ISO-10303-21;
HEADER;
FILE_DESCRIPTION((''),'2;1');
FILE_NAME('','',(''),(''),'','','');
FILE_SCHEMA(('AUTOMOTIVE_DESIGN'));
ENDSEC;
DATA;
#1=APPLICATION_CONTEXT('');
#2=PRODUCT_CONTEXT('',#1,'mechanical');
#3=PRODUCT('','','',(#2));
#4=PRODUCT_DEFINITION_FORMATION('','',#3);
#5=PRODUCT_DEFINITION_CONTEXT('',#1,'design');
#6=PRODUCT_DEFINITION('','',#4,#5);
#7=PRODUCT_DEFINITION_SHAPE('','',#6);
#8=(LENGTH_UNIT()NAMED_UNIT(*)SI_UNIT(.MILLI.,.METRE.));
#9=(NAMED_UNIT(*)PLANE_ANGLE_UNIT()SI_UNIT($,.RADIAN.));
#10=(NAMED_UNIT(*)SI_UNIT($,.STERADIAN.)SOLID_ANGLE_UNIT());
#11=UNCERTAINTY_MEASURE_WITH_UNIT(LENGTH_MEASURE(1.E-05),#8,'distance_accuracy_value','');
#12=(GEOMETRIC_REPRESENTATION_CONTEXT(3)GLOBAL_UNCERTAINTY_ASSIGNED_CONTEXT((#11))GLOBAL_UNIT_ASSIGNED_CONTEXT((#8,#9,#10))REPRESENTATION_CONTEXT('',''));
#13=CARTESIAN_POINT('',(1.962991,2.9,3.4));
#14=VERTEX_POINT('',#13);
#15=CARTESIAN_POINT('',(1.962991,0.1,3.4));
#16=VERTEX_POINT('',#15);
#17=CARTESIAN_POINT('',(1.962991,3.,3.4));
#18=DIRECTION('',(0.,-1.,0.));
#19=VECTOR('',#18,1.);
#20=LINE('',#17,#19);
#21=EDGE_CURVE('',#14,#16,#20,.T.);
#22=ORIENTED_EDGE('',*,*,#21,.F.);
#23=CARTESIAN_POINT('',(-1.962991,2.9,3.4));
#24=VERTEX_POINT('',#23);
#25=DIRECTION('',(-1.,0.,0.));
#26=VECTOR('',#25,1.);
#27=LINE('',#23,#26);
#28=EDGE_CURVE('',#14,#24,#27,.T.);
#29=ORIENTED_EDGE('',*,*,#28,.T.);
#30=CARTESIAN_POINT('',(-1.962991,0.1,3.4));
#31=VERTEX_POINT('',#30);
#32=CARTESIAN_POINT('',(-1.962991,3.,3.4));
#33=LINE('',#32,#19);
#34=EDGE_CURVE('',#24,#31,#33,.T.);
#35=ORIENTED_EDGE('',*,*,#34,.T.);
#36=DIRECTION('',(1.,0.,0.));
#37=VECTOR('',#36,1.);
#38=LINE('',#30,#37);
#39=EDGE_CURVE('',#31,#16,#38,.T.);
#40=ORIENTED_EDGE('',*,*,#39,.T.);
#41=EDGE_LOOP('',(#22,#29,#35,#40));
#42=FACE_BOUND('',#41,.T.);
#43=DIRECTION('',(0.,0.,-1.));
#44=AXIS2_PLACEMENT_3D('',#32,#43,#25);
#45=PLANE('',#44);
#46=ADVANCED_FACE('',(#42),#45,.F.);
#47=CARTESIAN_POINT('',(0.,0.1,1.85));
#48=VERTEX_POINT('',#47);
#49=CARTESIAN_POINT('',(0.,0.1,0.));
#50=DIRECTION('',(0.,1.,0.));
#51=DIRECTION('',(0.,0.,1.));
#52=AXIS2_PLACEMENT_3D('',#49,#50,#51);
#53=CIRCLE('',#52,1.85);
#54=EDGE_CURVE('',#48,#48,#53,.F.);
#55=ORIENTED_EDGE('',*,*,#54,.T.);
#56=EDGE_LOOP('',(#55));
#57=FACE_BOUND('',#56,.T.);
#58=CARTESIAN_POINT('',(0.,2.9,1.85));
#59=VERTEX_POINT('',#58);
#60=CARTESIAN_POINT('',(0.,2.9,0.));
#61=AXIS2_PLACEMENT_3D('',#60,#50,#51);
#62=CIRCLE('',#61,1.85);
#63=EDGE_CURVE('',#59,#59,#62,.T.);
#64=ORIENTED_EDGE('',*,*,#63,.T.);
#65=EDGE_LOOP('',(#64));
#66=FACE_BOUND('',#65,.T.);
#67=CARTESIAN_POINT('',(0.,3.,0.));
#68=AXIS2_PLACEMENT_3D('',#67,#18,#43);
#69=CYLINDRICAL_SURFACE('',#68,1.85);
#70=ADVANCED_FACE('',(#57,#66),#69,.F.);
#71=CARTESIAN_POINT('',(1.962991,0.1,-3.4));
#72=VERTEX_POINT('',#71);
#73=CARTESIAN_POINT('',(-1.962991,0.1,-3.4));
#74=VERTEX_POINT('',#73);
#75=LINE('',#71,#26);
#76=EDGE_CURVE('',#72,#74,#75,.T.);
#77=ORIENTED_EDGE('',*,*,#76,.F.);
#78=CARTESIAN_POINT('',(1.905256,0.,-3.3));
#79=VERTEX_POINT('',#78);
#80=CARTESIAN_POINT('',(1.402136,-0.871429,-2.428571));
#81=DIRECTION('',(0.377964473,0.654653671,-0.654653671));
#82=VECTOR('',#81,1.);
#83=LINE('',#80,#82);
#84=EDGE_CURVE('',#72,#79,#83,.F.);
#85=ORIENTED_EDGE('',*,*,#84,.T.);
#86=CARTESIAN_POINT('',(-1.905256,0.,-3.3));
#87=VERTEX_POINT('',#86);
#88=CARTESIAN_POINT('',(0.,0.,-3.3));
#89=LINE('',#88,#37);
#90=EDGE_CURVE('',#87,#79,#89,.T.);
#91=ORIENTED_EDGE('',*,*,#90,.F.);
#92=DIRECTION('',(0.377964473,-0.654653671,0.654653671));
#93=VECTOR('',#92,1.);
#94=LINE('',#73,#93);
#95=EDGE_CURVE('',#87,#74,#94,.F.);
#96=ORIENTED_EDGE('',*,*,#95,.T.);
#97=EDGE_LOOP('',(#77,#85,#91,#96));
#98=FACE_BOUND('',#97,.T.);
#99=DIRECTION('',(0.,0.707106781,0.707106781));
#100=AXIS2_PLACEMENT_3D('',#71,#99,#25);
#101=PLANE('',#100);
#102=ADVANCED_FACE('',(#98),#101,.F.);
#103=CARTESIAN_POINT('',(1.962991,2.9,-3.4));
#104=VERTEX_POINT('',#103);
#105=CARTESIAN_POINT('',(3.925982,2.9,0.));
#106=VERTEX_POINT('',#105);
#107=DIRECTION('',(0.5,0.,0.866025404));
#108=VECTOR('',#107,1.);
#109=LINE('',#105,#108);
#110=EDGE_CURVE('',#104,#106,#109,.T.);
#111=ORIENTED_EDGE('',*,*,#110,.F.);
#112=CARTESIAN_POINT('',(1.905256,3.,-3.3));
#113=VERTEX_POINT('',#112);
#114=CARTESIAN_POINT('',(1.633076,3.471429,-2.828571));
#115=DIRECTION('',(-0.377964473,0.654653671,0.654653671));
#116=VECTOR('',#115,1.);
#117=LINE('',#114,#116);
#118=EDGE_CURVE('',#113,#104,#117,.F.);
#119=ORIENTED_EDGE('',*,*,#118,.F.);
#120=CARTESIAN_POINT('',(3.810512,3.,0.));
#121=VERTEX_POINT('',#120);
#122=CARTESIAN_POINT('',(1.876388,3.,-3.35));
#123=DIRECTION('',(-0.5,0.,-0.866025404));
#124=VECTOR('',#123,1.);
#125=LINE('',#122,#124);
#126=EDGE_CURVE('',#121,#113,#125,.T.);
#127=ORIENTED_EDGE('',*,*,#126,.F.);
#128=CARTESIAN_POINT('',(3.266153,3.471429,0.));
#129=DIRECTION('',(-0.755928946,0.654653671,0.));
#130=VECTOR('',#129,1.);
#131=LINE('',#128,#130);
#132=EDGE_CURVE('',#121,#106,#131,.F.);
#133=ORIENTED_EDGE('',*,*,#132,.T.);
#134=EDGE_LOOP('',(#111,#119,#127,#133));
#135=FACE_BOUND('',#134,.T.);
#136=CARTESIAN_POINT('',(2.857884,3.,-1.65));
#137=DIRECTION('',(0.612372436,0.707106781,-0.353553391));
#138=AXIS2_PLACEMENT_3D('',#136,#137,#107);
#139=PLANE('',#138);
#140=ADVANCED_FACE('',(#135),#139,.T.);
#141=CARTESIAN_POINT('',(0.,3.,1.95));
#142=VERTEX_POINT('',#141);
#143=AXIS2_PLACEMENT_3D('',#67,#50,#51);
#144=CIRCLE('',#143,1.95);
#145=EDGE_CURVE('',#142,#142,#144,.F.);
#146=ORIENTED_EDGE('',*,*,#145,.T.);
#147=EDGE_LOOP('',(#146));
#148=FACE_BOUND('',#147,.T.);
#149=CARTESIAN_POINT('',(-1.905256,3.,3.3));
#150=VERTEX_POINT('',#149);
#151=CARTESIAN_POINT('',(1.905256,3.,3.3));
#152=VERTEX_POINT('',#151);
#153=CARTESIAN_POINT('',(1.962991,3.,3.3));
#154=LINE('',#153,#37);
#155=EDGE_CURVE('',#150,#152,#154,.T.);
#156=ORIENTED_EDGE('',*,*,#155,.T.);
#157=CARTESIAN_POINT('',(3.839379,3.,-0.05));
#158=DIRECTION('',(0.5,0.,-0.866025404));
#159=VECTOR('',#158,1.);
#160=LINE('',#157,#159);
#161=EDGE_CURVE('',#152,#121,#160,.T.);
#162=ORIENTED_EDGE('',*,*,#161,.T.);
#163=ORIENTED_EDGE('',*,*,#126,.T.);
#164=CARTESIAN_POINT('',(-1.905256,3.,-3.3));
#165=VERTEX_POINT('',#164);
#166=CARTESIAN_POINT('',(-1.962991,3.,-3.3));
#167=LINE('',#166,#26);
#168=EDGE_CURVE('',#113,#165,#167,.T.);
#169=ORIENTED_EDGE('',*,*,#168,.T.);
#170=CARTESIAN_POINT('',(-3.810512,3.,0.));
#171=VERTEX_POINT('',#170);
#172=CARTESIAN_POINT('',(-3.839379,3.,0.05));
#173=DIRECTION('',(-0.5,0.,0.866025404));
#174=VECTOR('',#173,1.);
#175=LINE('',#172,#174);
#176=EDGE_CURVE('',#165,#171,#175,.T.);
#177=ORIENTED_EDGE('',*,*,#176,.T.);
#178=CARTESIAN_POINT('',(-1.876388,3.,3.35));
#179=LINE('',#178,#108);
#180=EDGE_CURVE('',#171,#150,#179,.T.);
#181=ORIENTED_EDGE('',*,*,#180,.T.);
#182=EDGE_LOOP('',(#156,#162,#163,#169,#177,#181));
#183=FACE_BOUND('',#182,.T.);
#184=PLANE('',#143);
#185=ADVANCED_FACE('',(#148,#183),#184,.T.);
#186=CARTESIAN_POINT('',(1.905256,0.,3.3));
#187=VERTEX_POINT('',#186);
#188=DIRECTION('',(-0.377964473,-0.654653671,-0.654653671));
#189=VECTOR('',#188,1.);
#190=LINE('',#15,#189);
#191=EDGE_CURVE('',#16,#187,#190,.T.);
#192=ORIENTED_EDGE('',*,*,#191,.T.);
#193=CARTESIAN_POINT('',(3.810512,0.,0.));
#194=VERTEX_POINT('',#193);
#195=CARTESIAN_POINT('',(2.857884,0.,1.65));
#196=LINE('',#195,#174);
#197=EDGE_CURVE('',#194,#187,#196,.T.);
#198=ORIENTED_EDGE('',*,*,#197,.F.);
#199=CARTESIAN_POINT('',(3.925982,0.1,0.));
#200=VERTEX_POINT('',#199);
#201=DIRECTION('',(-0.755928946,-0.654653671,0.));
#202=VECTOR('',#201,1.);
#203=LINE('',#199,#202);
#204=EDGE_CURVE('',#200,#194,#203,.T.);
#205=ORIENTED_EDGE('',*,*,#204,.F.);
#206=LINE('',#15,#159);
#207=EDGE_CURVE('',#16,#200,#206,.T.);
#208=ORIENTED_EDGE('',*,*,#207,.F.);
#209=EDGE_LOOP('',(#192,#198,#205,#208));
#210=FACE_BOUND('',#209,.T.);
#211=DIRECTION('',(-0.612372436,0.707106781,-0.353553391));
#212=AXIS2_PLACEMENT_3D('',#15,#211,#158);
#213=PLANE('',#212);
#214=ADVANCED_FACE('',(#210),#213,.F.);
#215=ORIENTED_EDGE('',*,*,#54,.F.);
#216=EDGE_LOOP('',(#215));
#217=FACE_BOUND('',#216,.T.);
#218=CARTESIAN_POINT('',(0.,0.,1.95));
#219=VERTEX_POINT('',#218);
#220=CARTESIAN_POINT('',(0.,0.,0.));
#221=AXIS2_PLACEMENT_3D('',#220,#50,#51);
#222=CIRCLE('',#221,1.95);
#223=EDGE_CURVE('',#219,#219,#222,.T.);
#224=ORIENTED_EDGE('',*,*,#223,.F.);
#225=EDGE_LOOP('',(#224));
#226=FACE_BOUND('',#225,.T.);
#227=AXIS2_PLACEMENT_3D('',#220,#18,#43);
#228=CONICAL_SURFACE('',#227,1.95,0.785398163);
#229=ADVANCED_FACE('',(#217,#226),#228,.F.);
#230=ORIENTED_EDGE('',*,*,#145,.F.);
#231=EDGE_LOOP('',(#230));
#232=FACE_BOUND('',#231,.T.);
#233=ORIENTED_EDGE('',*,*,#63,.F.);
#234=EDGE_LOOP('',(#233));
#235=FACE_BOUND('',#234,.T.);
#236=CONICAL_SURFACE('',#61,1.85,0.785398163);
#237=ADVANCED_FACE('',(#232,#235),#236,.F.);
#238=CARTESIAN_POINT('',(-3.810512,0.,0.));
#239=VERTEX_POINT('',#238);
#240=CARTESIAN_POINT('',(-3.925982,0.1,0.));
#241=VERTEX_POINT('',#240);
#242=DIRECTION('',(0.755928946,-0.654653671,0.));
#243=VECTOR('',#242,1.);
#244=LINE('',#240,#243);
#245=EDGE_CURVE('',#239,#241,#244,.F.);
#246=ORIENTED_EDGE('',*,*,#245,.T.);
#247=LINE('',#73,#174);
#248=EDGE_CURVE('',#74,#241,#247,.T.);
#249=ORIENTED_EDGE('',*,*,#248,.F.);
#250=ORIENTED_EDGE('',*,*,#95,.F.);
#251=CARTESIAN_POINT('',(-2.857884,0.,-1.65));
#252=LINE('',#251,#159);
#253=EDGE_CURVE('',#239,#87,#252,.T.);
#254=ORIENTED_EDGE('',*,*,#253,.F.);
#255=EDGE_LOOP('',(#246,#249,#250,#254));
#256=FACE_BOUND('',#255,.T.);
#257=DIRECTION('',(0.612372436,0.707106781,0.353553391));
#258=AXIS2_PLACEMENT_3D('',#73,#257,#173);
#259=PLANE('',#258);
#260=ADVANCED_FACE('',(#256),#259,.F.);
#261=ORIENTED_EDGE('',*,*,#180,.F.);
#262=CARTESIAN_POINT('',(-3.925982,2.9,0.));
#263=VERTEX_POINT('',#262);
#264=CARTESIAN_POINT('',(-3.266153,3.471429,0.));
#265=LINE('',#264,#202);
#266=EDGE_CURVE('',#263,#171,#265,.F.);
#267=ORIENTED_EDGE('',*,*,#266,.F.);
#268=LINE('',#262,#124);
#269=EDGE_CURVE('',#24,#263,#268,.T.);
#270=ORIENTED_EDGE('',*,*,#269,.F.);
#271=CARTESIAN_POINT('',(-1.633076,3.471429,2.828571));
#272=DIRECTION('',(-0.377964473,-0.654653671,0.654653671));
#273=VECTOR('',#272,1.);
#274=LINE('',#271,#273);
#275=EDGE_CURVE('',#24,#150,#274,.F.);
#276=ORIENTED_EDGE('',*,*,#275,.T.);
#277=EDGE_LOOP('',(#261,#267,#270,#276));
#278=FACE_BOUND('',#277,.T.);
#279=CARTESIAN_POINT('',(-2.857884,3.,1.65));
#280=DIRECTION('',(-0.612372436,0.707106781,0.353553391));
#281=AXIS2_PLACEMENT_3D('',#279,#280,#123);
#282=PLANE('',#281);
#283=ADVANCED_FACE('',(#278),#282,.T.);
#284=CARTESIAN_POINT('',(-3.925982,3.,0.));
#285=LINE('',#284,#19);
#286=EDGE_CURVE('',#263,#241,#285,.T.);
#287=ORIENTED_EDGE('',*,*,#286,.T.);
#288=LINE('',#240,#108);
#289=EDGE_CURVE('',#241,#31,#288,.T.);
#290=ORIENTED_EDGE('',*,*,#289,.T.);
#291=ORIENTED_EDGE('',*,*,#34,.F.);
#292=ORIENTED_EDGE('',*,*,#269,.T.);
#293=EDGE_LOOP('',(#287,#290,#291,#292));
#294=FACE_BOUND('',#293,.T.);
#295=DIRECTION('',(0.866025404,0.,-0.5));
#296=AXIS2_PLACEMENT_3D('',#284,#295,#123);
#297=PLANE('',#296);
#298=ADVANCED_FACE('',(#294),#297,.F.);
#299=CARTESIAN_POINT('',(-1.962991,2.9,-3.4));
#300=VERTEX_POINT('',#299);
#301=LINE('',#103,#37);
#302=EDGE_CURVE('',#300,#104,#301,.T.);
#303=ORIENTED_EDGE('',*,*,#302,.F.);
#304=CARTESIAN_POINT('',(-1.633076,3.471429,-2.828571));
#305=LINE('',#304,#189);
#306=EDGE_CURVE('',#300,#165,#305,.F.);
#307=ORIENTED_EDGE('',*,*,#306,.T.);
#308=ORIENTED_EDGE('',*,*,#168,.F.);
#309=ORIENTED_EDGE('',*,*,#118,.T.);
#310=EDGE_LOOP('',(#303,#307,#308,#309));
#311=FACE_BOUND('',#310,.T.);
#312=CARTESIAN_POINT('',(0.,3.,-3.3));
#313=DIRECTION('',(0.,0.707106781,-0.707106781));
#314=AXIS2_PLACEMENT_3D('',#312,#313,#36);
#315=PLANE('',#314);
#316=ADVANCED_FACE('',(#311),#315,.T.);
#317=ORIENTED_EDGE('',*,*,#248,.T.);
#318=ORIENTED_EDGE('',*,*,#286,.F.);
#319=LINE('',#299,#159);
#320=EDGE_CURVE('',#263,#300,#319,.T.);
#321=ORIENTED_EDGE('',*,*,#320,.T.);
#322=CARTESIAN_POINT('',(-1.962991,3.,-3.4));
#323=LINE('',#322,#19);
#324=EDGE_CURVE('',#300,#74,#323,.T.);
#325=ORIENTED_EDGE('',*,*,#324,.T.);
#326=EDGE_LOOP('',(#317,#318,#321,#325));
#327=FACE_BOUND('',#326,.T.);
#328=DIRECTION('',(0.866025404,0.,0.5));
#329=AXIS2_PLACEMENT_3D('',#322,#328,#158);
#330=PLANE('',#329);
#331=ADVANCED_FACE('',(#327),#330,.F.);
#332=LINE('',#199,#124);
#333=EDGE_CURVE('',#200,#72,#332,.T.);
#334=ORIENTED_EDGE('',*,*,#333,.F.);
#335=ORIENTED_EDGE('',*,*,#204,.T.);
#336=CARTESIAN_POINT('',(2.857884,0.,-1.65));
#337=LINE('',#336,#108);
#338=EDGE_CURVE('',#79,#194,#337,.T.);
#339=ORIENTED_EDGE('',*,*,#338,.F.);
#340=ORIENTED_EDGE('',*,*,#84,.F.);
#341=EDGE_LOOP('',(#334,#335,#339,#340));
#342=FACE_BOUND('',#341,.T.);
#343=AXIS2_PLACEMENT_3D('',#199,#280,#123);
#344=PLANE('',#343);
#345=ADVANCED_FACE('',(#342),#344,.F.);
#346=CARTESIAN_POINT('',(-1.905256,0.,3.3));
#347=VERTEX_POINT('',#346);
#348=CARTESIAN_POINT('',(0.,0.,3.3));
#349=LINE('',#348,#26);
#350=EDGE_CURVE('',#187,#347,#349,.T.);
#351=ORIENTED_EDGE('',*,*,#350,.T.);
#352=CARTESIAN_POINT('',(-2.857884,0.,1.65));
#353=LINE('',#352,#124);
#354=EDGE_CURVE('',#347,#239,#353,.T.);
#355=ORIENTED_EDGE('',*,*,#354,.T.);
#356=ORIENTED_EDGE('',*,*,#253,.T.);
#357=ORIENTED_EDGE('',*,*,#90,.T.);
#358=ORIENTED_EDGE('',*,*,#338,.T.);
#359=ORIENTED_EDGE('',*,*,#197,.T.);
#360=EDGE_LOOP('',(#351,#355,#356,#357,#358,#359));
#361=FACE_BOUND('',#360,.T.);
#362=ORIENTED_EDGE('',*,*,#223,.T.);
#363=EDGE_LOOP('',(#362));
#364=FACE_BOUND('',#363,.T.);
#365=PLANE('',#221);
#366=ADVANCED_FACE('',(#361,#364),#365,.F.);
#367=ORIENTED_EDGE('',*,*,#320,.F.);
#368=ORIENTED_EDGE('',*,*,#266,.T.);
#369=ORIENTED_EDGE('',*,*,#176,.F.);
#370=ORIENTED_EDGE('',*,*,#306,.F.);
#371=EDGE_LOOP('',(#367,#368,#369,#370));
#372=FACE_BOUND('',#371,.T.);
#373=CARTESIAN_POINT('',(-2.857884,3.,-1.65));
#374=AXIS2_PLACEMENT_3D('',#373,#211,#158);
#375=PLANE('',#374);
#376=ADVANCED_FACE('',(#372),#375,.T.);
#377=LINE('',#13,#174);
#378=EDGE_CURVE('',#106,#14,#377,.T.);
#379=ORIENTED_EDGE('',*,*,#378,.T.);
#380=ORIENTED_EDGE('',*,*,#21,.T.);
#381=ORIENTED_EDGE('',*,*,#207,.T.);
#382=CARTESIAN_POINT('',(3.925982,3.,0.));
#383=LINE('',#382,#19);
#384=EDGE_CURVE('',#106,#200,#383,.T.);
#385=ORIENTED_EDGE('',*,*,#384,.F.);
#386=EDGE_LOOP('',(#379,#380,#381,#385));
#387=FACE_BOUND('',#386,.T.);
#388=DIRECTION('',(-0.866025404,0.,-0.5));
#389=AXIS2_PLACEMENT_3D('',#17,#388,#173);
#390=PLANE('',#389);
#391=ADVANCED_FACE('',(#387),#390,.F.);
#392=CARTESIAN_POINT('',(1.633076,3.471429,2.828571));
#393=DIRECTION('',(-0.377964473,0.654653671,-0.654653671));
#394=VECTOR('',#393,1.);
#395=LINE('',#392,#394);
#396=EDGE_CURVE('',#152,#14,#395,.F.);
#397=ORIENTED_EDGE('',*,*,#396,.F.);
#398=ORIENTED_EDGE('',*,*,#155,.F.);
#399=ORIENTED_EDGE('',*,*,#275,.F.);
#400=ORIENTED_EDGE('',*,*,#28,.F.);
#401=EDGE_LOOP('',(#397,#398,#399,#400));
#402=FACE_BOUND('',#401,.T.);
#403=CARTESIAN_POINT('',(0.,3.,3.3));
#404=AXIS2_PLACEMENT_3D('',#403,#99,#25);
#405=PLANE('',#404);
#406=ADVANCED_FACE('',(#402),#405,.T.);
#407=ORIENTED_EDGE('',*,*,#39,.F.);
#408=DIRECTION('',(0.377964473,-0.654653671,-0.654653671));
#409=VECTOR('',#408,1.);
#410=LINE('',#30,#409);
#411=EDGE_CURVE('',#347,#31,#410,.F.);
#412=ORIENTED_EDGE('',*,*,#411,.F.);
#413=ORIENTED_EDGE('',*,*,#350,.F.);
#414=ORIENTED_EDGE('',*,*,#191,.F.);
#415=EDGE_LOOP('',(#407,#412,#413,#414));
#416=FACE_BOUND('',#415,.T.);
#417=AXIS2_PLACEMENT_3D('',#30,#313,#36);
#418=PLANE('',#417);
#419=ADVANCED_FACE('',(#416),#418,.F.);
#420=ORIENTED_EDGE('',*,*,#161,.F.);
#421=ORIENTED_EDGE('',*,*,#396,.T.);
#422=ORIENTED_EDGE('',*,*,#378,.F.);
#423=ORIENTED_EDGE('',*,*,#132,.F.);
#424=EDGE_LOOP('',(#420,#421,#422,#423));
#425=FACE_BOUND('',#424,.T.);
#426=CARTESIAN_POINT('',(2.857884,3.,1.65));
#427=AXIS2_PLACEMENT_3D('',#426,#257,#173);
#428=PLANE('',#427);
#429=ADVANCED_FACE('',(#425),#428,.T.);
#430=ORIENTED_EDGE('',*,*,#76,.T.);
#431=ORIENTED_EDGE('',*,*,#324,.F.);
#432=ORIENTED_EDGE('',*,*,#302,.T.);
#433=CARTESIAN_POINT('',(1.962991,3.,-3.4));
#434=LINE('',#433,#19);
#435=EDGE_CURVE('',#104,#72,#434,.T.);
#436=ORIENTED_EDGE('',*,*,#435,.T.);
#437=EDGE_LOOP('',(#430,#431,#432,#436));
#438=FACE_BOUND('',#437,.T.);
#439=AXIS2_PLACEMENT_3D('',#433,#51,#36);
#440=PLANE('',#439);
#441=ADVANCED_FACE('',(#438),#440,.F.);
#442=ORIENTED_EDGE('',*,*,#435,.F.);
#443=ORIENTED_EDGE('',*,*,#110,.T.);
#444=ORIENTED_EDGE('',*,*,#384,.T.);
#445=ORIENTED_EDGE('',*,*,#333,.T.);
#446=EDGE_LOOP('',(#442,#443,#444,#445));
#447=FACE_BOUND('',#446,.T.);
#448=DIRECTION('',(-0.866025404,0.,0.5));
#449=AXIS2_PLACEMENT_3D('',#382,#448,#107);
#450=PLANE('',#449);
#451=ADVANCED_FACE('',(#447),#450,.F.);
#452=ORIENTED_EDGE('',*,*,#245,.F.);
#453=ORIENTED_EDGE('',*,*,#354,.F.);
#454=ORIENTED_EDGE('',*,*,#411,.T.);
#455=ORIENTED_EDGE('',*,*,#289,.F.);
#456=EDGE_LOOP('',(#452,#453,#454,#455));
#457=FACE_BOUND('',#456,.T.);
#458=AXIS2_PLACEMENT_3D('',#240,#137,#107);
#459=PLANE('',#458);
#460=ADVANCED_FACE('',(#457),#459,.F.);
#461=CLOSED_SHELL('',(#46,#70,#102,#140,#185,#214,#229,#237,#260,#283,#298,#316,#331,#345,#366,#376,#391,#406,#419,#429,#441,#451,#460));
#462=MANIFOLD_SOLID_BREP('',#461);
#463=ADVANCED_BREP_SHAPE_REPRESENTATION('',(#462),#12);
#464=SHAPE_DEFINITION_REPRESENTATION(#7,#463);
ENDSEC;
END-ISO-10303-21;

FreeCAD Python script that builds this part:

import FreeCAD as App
import Part
import Sketcher

V = App.Vector
Q = App.Units.Quantity


def edges_at(feature, points):
    """Names of the edges that pass closest to the given points."""
    edges = feature.Shape.Edges
    near = lambda p: min(range(len(edges)), key=lambda i: edges[i].distToShape(Part.Vertex(*p))[0])
    return sorted({f"Edge{near(p) + 1}" for p in points})

doc = App.newDocument("Part")
body = doc.addObject("PartDesign::Body", "Body")

sketch1 = body.newObject("Sketcher::SketchObject", "Sketch")
sketch1.AttachmentSupport = (doc.getObject("XZ_Plane"), [""])
sketch1.MapMode = "FlatFace"
sketch1.addGeometry([
    Part.LineSegment(V(3.925982, 0, 0), V(1.962991, -3.4, 0)),
    Part.LineSegment(V(1.962991, -3.4, 0), V(-1.962991, -3.4, 0)),
    Part.LineSegment(V(-1.962991, -3.4, 0), V(-3.925982, 0, 0)),
    Part.LineSegment(V(-3.925982, 0, 0), V(-1.962991, 3.4, 0)),
    Part.LineSegment(V(-1.962991, 3.4, 0), V(1.962991, 3.4, 0)),
    Part.LineSegment(V(1.962991, 3.4, 0), V(3.925982, 0, 0)),
    Part.Circle(V(0, 0, 0), V(0, 0, 1), 1.85),
], False)
sketch1.addConstraint([
    Sketcher.Constraint("Coincident", 0, 2, 1, 1),
    Sketcher.Constraint("Coincident", 1, 2, 2, 1),
    Sketcher.Constraint("Coincident", 2, 2, 3, 1),
    Sketcher.Constraint("Coincident", 3, 2, 4, 1),
    Sketcher.Constraint("Coincident", 4, 2, 5, 1),
    Sketcher.Constraint("Coincident", 5, 2, 0, 1),
    Sketcher.Constraint("Horizontal", 1),
    Sketcher.Constraint("Horizontal", 4),
    Sketcher.Constraint("Coincident", 6, 3, -1, 1),
    Sketcher.Constraint("Symmetric", 0, 2, 3, 2, -1, 1),
    Sketcher.Constraint("Symmetric", 2, 2, 5, 2, -1, 1),
    Sketcher.Constraint("PointOnObject", 2, 2, -1),
    Sketcher.Constraint("Parallel", 2, 5),
    Sketcher.Constraint("Vertical", 1, 2, 3, 2),
    Sketcher.Constraint("Diameter", 6, Q("3.7 mm")),
    Sketcher.Constraint("Angle", 0, Q("-120 deg")),
    Sketcher.Constraint("DistanceY", 0, 2, -1, 1, Q("3.4 mm")),
    Sketcher.Constraint("DistanceX", 1, 2, 1, 1, Q("3.925982 mm")),
])
pad1 = body.newObject("PartDesign::Pad", "Pad")
pad1.Profile = sketch1
pad1.Length = 3
pad1.Reversed = True
doc.recompute()

chamfer = body.newObject("PartDesign::Chamfer", "Chamfer")
chamfer.Base = (pad1, edges_at(pad1, [
    (0, 3, -3.4),
    (-2.944, 3, -1.7),
    (-2.944, 3, 1.7),
    (-1.85, 0, 0),
    (-1.85, 3, 0),
    (0, 3, 3.4),
    (2.944, 3, 1.7),
    (0, 0, 3.4),
    (-2.944, 0, 1.7),
    (-2.944, 0, -1.7),
    (2.944, 3, -1.7),
    (0, 0, -3.4),
    (2.944, 0, -1.7),
    (2.944, 0, 1.7),
]))
chamfer.Size = 0.1

doc.recompute()
